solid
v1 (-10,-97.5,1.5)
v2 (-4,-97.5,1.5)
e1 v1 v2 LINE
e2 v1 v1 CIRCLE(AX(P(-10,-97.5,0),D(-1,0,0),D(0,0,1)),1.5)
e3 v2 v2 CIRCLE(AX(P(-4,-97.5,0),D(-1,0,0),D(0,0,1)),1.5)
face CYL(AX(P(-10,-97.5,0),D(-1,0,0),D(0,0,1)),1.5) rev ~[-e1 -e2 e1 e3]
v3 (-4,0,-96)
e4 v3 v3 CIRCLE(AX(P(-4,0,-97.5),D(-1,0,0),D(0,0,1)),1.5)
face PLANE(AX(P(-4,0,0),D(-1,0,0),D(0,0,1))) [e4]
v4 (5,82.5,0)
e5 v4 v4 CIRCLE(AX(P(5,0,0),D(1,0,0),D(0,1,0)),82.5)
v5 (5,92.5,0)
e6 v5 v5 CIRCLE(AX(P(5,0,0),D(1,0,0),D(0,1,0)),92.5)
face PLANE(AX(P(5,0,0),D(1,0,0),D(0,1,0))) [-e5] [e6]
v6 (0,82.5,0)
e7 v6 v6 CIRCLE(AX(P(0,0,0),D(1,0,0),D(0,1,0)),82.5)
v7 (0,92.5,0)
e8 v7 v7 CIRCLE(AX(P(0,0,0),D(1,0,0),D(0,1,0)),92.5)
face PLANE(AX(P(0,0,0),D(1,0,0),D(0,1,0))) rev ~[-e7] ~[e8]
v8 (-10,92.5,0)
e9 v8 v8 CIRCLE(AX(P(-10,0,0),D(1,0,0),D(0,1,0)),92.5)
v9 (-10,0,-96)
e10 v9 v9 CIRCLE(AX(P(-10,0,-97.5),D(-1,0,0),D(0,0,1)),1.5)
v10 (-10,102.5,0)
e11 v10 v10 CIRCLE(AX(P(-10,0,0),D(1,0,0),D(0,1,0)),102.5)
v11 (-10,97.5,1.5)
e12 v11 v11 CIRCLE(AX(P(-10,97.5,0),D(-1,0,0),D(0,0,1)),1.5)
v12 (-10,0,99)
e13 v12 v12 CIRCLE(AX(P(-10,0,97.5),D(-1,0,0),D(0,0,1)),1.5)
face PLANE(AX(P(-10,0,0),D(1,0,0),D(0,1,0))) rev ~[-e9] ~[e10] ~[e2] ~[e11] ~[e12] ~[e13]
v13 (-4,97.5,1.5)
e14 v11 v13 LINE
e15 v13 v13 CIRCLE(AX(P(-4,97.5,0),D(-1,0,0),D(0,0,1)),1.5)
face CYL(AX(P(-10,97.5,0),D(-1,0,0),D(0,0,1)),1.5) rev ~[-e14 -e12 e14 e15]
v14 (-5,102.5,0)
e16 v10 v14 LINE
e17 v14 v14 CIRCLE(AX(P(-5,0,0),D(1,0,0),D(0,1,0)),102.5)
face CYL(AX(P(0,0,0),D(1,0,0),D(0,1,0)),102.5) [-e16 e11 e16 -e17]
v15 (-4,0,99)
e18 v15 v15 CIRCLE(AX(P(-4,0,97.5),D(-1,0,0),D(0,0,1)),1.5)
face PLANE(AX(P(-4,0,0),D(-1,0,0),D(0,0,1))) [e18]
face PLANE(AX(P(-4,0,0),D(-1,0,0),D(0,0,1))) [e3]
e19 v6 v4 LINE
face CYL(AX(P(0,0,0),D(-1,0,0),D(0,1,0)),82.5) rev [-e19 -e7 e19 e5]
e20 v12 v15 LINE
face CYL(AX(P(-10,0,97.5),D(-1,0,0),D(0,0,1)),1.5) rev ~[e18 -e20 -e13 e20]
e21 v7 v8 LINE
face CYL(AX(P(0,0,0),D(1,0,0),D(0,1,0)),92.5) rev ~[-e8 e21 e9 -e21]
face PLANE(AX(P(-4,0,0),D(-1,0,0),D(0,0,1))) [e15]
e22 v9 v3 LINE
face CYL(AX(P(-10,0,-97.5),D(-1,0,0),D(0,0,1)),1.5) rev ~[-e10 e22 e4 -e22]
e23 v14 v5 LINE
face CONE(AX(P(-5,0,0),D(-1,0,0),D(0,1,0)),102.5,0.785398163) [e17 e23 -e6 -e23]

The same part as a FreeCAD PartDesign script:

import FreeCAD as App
import Part
import Sketcher


def edges_at(feature, points):
    """Names of the edges that pass closest to the given points."""
    edges = feature.Shape.Edges
    near = lambda p: min(range(len(edges)), key=lambda i: edges[i].distToShape(Part.Vertex(*p))[0])
    return sorted({f"Edge{near(p) + 1}" for p in points})

doc = App.newDocument("Part")
body = doc.addObject("PartDesign::Body", "Body")

sketch1 = body.newObject("Sketcher::SketchObject", "Sketch")
sketch1.AttachmentSupport = (doc.getObject("YZ_Plane"), [""])
sketch1.MapMode = "FlatFace"
sketch1.addGeometry(Part.Circle(App.Vector(0, 0, 0), App.Vector(0, 0, 1), 102), False)
sketch1.addGeometry(Part.Circle(App.Vector(0, 0, 0), App.Vector(0, 0, 1), 82), False)
sketch1.addConstraint(Sketcher.Constraint("Coincident", 0, 3, -1, 1))
sketch1.addConstraint(Sketcher.Constraint("Coincident", 1, 3, -1, 1))
sketch1.addConstraint(Sketcher.Constraint("Diameter", 1, 165.0))
sketch1.addConstraint(Sketcher.Constraint("Diameter", 0, 205.0))
pad1 = body.newObject("PartDesign::Pad", "Pad")
pad1.Profile = sketch1
pad1.Length = 5

sketch2 = body.newObject("Sketcher::SketchObject", "Sketch001")
sketch2.AttachmentSupport = (doc.getObject("YZ_Plane"), [""])
sketch2.MapMode = "FlatFace"
sketch2.addGeometry(Part.Circle(App.Vector(0, 0, 0), App.Vector(0, 0, 1), 102), False)
sketch2.addGeometry(Part.Circle(App.Vector(0, 0, 0), App.Vector(0, 0, 1), 92), False)
sketch2.addConstraint(Sketcher.Constraint("Coincident", 0, 3, -1, 1))
sketch2.addConstraint(Sketcher.Constraint("Coincident", 1, 3, -1, 1))
sketch2.addConstraint(Sketcher.Constraint("Diameter", 0, 205.0))
sketch2.addConstraint(Sketcher.Constraint("Diameter", 1, 185.0))
pad2 = body.newObject("PartDesign::Pad", "Pad001")
pad2.Profile = sketch2
pad2.Length = 10
pad2.Reversed = True
doc.recompute()

chamfer = body.newObject("PartDesign::Chamfer", "Chamfer")
chamfer.Base = (pad2, edges_at(pad2, [(5, -102.5, 0)]))
chamfer.Size = 10

sketch3 = body.newObject("Sketcher::SketchObject", "Sketch002")
sketch3.AttachmentSupport = (doc.getObject("YZ_Plane"), [""])
sketch3.MapMode = "FlatFace"
sketch3.AttachmentOffset = App.Placement(App.Vector(0, 0, -10), App.Rotation())
sketch3.addGeometry(Part.Circle(App.Vector(97.5, 0, 0), App.Vector(0, 0, 1), 1.5), False)
sketch3.addGeometry(Part.Circle(App.Vector(0, -97.5, 0), App.Vector(0, 0, 1), 1.5), False)
sketch3.addGeometry(Part.Circle(App.Vector(-97.5, 0, 0), App.Vector(0, 0, 1), 1.5), False)
sketch3.addGeometry(Part.Circle(App.Vector(0, 97.5, 0), App.Vector(0, 0, 1), 1.5), False)
sketch3.addConstraint(Sketcher.Constraint("Equal", 0, 1))
sketch3.addConstraint(Sketcher.Constraint("Equal", 1, 2))
sketch3.addConstraint(Sketcher.Constraint("Equal", 2, 3))
sketch3.addConstraint(Sketcher.Constraint("Symmetric", 0, 3, 2, 3, -1, 1))
sketch3.addConstraint(Sketcher.Constraint("Symmetric", 1, 3, 3, 3, -1, 1))
sketch3.addConstraint(Sketcher.Constraint("PointOnObject", 0, 3, -1))
sketch3.addConstraint(Sketcher.Constraint("PointOnObject", 1, 3, -2))
sketch3.addConstraint(Sketcher.Constraint("Diameter", 0, 3.0))
sketch3.addConstraint(Sketcher.Constraint("DistanceX", -1, 1, 0, 3, 97.5))
sketch3.addConstraint(Sketcher.Constraint("DistanceY", 1, 3, -1, 1, 97.5))
pocket1 = body.newObject("PartDesign::Pocket", "Pocket")
pocket1.Profile = sketch3
pocket1.Length = 6
pocket1.Reversed = True

doc.recompute()
